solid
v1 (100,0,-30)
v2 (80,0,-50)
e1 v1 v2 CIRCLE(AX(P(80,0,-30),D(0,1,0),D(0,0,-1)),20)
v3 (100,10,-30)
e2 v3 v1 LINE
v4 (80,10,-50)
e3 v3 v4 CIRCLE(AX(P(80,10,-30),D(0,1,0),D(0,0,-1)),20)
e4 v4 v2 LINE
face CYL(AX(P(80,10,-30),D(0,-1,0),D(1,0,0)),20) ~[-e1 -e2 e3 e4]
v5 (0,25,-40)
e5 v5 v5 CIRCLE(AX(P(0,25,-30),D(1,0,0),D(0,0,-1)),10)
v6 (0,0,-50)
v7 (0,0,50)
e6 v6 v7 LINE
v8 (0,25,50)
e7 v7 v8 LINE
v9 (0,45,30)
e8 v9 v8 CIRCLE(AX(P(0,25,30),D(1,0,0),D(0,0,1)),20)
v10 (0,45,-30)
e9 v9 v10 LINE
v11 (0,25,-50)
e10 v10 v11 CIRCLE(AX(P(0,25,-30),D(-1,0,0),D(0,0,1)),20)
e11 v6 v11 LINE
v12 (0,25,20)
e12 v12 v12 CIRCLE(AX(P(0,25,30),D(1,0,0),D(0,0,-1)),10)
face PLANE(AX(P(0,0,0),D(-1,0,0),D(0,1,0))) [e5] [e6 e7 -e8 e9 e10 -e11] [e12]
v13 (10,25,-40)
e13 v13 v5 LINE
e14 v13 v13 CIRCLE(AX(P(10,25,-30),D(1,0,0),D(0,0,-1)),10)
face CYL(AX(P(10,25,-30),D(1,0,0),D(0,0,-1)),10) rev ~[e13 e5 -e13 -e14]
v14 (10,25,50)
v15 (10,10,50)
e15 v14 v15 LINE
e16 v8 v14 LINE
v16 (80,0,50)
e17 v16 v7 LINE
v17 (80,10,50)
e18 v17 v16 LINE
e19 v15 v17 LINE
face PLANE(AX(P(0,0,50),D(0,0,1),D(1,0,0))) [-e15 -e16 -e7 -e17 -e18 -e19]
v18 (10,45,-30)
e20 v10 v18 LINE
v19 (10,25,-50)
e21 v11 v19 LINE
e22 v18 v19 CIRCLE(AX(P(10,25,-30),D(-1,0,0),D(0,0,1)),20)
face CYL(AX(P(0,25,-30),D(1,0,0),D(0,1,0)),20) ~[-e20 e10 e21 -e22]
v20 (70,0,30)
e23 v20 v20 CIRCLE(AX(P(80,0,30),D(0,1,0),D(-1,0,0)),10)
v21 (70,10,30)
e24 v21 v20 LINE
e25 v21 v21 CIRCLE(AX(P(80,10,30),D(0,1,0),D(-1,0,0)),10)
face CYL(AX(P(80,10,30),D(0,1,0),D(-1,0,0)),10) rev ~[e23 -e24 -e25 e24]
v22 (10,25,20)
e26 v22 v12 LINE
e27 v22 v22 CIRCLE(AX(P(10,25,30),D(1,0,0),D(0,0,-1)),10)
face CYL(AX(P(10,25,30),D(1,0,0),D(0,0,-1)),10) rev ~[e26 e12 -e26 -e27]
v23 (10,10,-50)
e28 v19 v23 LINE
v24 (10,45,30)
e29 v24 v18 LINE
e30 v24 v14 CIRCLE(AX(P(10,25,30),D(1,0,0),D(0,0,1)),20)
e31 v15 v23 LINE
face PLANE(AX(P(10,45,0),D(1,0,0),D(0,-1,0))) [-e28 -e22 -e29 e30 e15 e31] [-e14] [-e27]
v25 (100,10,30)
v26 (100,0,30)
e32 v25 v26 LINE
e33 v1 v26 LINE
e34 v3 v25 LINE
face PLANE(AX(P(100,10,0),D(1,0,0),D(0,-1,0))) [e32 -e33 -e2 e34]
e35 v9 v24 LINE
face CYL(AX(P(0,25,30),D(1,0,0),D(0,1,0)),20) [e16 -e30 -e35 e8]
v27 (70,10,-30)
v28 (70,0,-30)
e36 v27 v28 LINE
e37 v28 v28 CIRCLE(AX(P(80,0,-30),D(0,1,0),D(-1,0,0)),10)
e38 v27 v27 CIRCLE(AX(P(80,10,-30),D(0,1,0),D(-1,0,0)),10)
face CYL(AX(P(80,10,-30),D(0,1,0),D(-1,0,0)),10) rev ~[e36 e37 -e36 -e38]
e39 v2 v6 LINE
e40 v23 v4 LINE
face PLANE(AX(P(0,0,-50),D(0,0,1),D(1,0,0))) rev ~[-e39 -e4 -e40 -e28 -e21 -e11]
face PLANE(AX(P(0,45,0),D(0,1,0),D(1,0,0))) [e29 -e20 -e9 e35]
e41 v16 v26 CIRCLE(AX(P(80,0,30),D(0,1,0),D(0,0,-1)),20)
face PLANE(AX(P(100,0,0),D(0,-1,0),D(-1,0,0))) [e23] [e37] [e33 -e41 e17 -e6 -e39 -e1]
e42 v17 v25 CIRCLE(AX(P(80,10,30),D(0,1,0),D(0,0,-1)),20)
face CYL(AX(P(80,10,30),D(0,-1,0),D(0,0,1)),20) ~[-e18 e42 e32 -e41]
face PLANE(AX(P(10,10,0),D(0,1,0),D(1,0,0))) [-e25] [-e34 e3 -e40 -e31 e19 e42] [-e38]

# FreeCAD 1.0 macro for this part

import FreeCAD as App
import Part
import Sketcher


def edges_at(feature, points):
    """Names of the edges that pass closest to the given points."""
    edges = feature.Shape.Edges
    near = lambda p: min(range(len(edges)), key=lambda i: edges[i].distToShape(Part.Vertex(*p))[0])
    return sorted({f"Edge{near(p) + 1}" for p in points})


def add_polygon(sketch, points):
    """Adds a closed chain of lines whose ends are joined by coincident constraints."""
    first, n = sketch.GeometryCount, len(points)
    for a, b in zip(points, points[1:] + points[:1]):
        sketch.addGeometry(Part.LineSegment(App.Vector(*a, 0), App.Vector(*b, 0)), False)
    for i in range(n):
        sketch.addConstraint(Sketcher.Constraint("Coincident", first + i, 2, first + (i + 1) % n, 1))

doc = App.newDocument("Part")
params = doc.addObject("Spreadsheet::Sheet", "Params")
for row, (alias, value) in enumerate([
    ("sketch1_width", "100 mm"),
    ("sketch1_width2", "10 mm"),
    ("sketch1_height", "45 mm"),
    ("pad1_length", "100 mm"),
    ("fillet_radius", "20 mm"),
    ("sketch2_diameter", "20 mm"),
    ("sketch3_diameter", "20 mm"),
], start=1):
    params.set(f"A{row}", alias)
    params.set(f"B{row}", "=" + value)
    params.setAlias(f"B{row}", alias)

body = doc.addObject("PartDesign::Body", "Body")

# Sketch on XY plane
sketch1 = body.newObject("Sketcher::SketchObject", "Sketch")
sketch1.AttachmentSupport = (doc.getObject("XY_Plane"), [""])
sketch1.MapMode = "FlatFace"
add_polygon(sketch1, [(0, 45), (0, 0), (100, 0), (100, 10), (10, 10), (10, 45)])  # lines 0-5
sketch1.addConstraint(Sketcher.Constraint("Vertical", 0))
sketch1.addConstraint(Sketcher.Constraint("Horizontal", 1))
sketch1.addConstraint(Sketcher.Constraint("Vertical", 2))
sketch1.addConstraint(Sketcher.Constraint("Horizontal", 3))
sketch1.addConstraint(Sketcher.Constraint("Vertical", 4))
sketch1.addConstraint(Sketcher.Constraint("Horizontal", 5))
sketch1.addConstraint(Sketcher.Constraint("Coincident", 0, 2, -1, 1))
sketch1.addConstraint(Sketcher.Constraint("Equal", 5, 2))
sketch1.addConstraint(Sketcher.Constraint("DistanceX", 1, 1, 1, 2, 100.0))
sketch1.addConstraint(Sketcher.Constraint("DistanceX", 5, 2, 5, 1, 10.0))
sketch1.addConstraint(Sketcher.Constraint("DistanceY", 0, 2, 0, 1, 45.0))
sketch1.setExpression("Constraints[14]", "Params.sketch1_width")
sketch1.setExpression("Constraints[15]", "Params.sketch1_width2")
sketch1.setExpression("Constraints[16]", "Params.sketch1_height")
pad1 = body.newObject("PartDesign::Pad", "Pad")
pad1.Profile = sketch1
pad1.setExpression("Length", "Params.pad1_length")
pad1.Midplane = True
doc.recompute()

fillet = body.newObject("PartDesign::Fillet", "Fillet")
fillet.Base = (pad1, edges_at(pad1, [
    (5, 45, 50),
    (5, 45, -50),
    (100, 5, -50),
    (100, 5, 50),
]))
fillet.setExpression("Radius", "Params.fillet_radius")

# Sketch on YZ plane
sketch2 = body.newObject("Sketcher::SketchObject", "Sketch001")
sketch2.AttachmentSupport = (doc.getObject("YZ_Plane"), [""])
sketch2.MapMode = "FlatFace"
sketch2.AttachmentOffset = App.Placement(App.Vector(0, 0, 10), App.Rotation())
sketch2.addGeometry(Part.Circle(App.Vector(25, 30, 0), App.Vector(0, 0, 1), 10), False)
sketch2.addGeometry(Part.Circle(App.Vector(25, -30, 0), App.Vector(0, 0, 1), 10), False)
sketch2.addConstraint(Sketcher.Constraint("Equal", 0, 1))
sketch2.addConstraint(Sketcher.Constraint("Symmetric", 0, 3, 1, 3, -1))
sketch2.addConstraint(Sketcher.Constraint("Diameter", 0, 20.0))
sketch2.addConstraint(Sketcher.Constraint("DistanceX", -1, 1, 0, 3, 25.0))
sketch2.addConstraint(Sketcher.Constraint("DistanceY", -1, 1, 0, 3, 30.0))
sketch2.setExpression("Constraints[2]", "Params.sketch2_diameter")
pocket1 = body.newObject("PartDesign::Pocket", "Pocket")
pocket1.Profile = sketch2
pocket1.Type = "ThroughAll"

# Sketch on XZ plane
sketch3 = body.newObject("Sketcher::SketchObject", "Sketch002")
sketch3.AttachmentSupport = (doc.getObject("XZ_Plane"), [""])
sketch3.MapMode = "FlatFace"
sketch3.AttachmentOffset = App.Placement(App.Vector(0, 0, -10), App.Rotation())
sketch3.addGeometry(Part.Circle(App.Vector(80, -30, 0), App.Vector(0, 0, 1), 10), False)
sketch3.addGeometry(Part.Circle(App.Vector(80, 30, 0), App.Vector(0, 0, 1), 10), False)
sketch3.addConstraint(Sketcher.Constraint("Equal", 0, 1))
sketch3.addConstraint(Sketcher.Constraint("Symmetric", 0, 3, 1, 3, -1))
sketch3.addConstraint(Sketcher.Constraint("Diameter", 0, 20.0))
sketch3.addConstraint(Sketcher.Constraint("DistanceX", -1, 1, 0, 3, 80.0))
sketch3.addConstraint(Sketcher.Constraint("DistanceY", 0, 3, -1, 1, 30.0))
sketch3.setExpression("Constraints[2]", "Params.sketch3_diameter")
pocket2 = body.newObject("PartDesign::Pocket", "Pocket001")
pocket2.Profile = sketch3
pocket2.Type = "ThroughAll"
pocket2.Reversed = True

doc.recompute()
